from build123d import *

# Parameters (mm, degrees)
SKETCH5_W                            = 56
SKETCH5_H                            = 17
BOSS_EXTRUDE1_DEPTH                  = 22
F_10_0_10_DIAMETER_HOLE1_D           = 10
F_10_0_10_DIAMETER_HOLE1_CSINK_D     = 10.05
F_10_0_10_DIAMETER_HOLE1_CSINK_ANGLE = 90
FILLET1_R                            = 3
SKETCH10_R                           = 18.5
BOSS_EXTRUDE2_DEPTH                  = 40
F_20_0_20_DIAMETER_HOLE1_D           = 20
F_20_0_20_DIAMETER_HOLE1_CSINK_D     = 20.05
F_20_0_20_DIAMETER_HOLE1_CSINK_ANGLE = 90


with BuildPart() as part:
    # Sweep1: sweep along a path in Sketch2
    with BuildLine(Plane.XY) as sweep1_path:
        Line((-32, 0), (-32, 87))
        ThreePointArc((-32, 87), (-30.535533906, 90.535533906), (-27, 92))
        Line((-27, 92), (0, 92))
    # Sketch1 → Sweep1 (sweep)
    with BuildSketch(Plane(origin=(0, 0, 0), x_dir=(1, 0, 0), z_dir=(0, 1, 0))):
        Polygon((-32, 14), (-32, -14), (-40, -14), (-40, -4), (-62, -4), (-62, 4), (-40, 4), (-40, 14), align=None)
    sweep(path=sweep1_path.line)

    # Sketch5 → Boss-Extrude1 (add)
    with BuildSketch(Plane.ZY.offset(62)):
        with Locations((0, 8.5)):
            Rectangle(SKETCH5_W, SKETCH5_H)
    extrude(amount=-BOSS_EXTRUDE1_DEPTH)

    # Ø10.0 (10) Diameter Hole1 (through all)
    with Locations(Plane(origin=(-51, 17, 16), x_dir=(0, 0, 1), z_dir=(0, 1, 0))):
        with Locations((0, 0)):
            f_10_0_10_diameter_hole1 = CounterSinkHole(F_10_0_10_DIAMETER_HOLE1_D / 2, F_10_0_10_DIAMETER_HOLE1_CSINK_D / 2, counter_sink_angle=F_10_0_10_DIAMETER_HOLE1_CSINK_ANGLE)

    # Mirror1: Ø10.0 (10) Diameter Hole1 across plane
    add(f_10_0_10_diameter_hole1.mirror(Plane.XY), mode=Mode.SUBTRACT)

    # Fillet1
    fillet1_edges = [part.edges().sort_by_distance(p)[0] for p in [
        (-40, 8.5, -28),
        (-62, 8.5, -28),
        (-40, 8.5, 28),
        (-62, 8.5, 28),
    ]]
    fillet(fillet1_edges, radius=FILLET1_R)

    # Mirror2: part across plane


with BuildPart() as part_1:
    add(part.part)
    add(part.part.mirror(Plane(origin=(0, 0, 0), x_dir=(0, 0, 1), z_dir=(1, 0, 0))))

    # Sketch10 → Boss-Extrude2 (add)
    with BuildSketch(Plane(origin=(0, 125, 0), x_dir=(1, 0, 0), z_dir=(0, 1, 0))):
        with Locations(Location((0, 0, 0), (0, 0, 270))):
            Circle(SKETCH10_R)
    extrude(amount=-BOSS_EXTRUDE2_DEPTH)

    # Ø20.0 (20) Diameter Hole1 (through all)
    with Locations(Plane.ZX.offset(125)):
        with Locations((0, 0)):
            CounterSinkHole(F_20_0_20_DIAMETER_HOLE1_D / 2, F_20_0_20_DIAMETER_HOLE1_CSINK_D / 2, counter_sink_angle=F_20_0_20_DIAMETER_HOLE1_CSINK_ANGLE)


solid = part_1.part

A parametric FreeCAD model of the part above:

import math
import FreeCAD as App
import Part
import Sketcher
Q = App.Units.Quantity


def edges_at(feature, points):
    """Names of the edges that pass closest to the given points."""
    edges = feature.Shape.Edges
    near = lambda p: min(range(len(edges)), key=lambda i: edges[i].distToShape(Part.Vertex(*p))[0])
    return sorted({f"Edge{near(p) + 1}" for p in points})

doc = App.newDocument("Part")
body = doc.addObject("PartDesign::Body", "Body")

sketch1 = body.newObject("Sketcher::SketchObject", "Sketch")
sketch1.AttachmentSupport = (doc.getObject("XZ_Plane"), [""])
sketch1.MapMode = "FlatFace"
sketch1.addGeometry(Part.LineSegment(App.Vector(-32, 14, 0), App.Vector(-32, -14, 0)), False)
sketch1.addGeometry(Part.LineSegment(App.Vector(-32, -14, 0), App.Vector(-40, -14, 0)), False)
sketch1.addGeometry(Part.LineSegment(App.Vector(-40, -14, 0), App.Vector(-40, -4, 0)), False)
sketch1.addGeometry(Part.LineSegment(App.Vector(-40, -4, 0), App.Vector(-62, -4, 0)), False)
sketch1.addGeometry(Part.LineSegment(App.Vector(-62, -4, 0), App.Vector(-62, 4, 0)), False)
sketch1.addGeometry(Part.LineSegment(App.Vector(-62, 4, 0), App.Vector(-40, 4, 0)), False)
sketch1.addGeometry(Part.LineSegment(App.Vector(-40, 4, 0), App.Vector(-40, 14, 0)), False)
sketch1.addGeometry(Part.LineSegment(App.Vector(-40, 14, 0), App.Vector(-32, 14, 0)), False)
sketch1.addConstraint(Sketcher.Constraint("Coincident", 0, 2, 1, 1))
sketch1.addConstraint(Sketcher.Constraint("Coincident", 1, 2, 2, 1))
sketch1.addConstraint(Sketcher.Constraint("Coincident", 2, 2, 3, 1))
sketch1.addConstraint(Sketcher.Constraint("Coincident", 3, 2, 4, 1))
sketch1.addConstraint(Sketcher.Constraint("Coincident", 4, 2, 5, 1))
sketch1.addConstraint(Sketcher.Constraint("Coincident", 5, 2, 6, 1))
sketch1.addConstraint(Sketcher.Constraint("Coincident", 6, 2, 7, 1))
sketch1.addConstraint(Sketcher.Constraint("Coincident", 7, 2, 0, 1))
sketch1.addConstraint(Sketcher.Constraint("Vertical", 0))
sketch1.addConstraint(Sketcher.Constraint("Horizontal", 1))
sketch1.addConstraint(Sketcher.Constraint("Vertical", 2))
sketch1.addConstraint(Sketcher.Constraint("Horizontal", 3))
sketch1.addConstraint(Sketcher.Constraint("Vertical", 4))
sketch1.addConstraint(Sketcher.Constraint("Horizontal", 5))
sketch1.addConstraint(Sketcher.Constraint("Vertical", 6))
sketch1.addConstraint(Sketcher.Constraint("Horizontal", 7))
sketch1.addConstraint(Sketcher.Constraint("Symmetric", 2, 2, 5, 2, -1))
sketch1.addConstraint(Sketcher.Constraint("Equal", 7, 4))
sketch1.addConstraint(Sketcher.Constraint("Equal", 2, 6))
sketch1.addConstraint(Sketcher.Constraint("DistanceX", 1, 2, 1, 1, Q("8 mm")))
sketch1.addConstraint(Sketcher.Constraint("DistanceX", 3, 2, 3, 1, Q("22 mm")))
sketch1.addConstraint(Sketcher.Constraint("DistanceY", 0, 2, 0, 1, Q("28 mm")))
sketch1.addConstraint(Sketcher.Constraint("DistanceX", 0, 2, -1, 1, Q("32 mm")))

sketch2 = body.newObject("Sketcher::SketchObject", "Sketch001")
sketch2.AttachmentSupport = (doc.getObject("XY_Plane"), [""])
sketch2.MapMode = "FlatFace"
sketch2.addGeometry(Part.LineSegment(App.Vector(-32, 0, 0), App.Vector(-32, 87, 0)), False)
sketch2.addGeometry(Part.ArcOfCircle(Part.Circle(App.Vector(-27, 87, 0), App.Vector(0, 0, 1), 5), math.radians(90), math.radians(180)), False)
sketch2.addGeometry(Part.LineSegment(App.Vector(-27, 92, 0), App.Vector(0, 92, 0)), False)
sketch2.addConstraint(Sketcher.Constraint("Tangent", 0, 2, 1, 2))
sketch2.addConstraint(Sketcher.Constraint("Tangent", 1, 1, 2, 1))
sketch2.addConstraint(Sketcher.Constraint("Vertical", 0))
sketch2.addConstraint(Sketcher.Constraint("Horizontal", 2))
sketch2.addConstraint(Sketcher.Constraint("PointOnObject", 0, 1, -1))
sketch2.addConstraint(Sketcher.Constraint("PointOnObject", 2, 2, -2))
sketch2.addConstraint(Sketcher.Constraint("Radius", 1, Q("5 mm")))
sketch2.addConstraint(Sketcher.Constraint("DistanceX", 2, 1, 2, 2, Q("27 mm")))
sketch2.addConstraint(Sketcher.Constraint("DistanceY", 0, 1, 0, 2, Q("87 mm")))
doc.recompute()

additivepipe = body.newObject("PartDesign::AdditivePipe", "AdditivePipe")
additivepipe.Profile = sketch1
additivepipe.Spine = (sketch2, ["Edge1", "Edge2", "Edge3"])

sketch3 = body.newObject("Sketcher::SketchObject", "Sketch002")
sketch3.AttachmentSupport = (doc.getObject("YZ_Plane"), [""])
sketch3.MapMode = "FlatFace"
sketch3.AttachmentOffset = App.Placement(App.Vector(0, 0, -62), App.Rotation())
sketch3.addGeometry(Part.LineSegment(App.Vector(17, -28, 0), App.Vector(0, -28, 0)), False)
sketch3.addGeometry(Part.LineSegment(App.Vector(0, -28, 0), App.Vector(0, 28, 0)), False)
sketch3.addGeometry(Part.LineSegment(App.Vector(0, 28, 0), App.Vector(17, 28, 0)), False)
sketch3.addGeometry(Part.LineSegment(App.Vector(17, 28, 0), App.Vector(17, -28, 0)), False)
sketch3.addConstraint(Sketcher.Constraint("Coincident", 0, 2, 1, 1))
sketch3.addConstraint(Sketcher.Constraint("Coincident", 1, 2, 2, 1))
sketch3.addConstraint(Sketcher.Constraint("Coincident", 2, 2, 3, 1))
sketch3.addConstraint(Sketcher.Constraint("Coincident", 3, 2, 0, 1))
sketch3.addConstraint(Sketcher.Constraint("Horizontal", 0))
sketch3.addConstraint(Sketcher.Constraint("Vertical", 1))
sketch3.addConstraint(Sketcher.Constraint("Horizontal", 2))
sketch3.addConstraint(Sketcher.Constraint("Vertical", 3))
sketch3.addConstraint(Sketcher.Constraint("Symmetric", 0, 2, 1, 2, -1, 1))
sketch3.addConstraint(Sketcher.Constraint("DistanceX", 0, 2, 0, 1, Q("17 mm")))
sketch3.addConstraint(Sketcher.Constraint("DistanceY", 1, 1, 1, 2, Q("56 mm")))
pad1 = body.newObject("PartDesign::Pad", "Pad")
pad1.Profile = sketch3
pad1.Length = 22

sketch4 = body.newObject("Sketcher::SketchObject", "Sketch003")
sketch4.AttachmentSupport = (doc.getObject("XZ_Plane"), [""])
sketch4.MapMode = "FlatFace"
sketch4.AttachmentOffset = App.Placement(App.Vector(0, 0, -17), App.Rotation())
sketch4.addGeometry(Part.Circle(App.Vector(-51, 16, 0), App.Vector(0, 0, 1), 5), False)
sketch4.addConstraint(Sketcher.Constraint("Diameter", 0, Q("10 mm")))
sketch4.addConstraint(Sketcher.Constraint("DistanceX", 0, 3, -1, 1, Q("51 mm")))
sketch4.addConstraint(Sketcher.Constraint("DistanceY", -1, 1, 0, 3, Q("16 mm")))
doc.recompute()
hole = body.newObject("PartDesign::Hole", "Hole")
hole.Profile = sketch4
hole.ThreadType = "None"
hole.Diameter = 10
hole.DepthType = "ThroughAll"
hole.HoleCutType = "Countersink"
hole.HoleCutDiameter = 10.05
hole.HoleCutCountersinkAngle = 90
hole.Reversed = True
doc.recompute()

mirrored = body.newObject("PartDesign::Mirrored", "Mirrored")
mirrored.Originals = [hole]
mirrored.MirrorPlane = (doc.getObject("XY_Plane"), [""])
body.Tip = mirrored
doc.recompute()

fillet = body.newObject("PartDesign::Fillet", "Fillet")
fillet.Base = (mirrored, edges_at(mirrored, [
    (-40, 8.5, -28),
    (-62, 8.5, -28),
    (-40, 8.5, 28),
    (-62, 8.5, 28),
]))
fillet.Radius = 3
body2 = doc.addObject("PartDesign::Body", "Body001")
doc.recompute()

body2.BaseFeature = body
doc.recompute()

mirroring = doc.addObject("Part::Mirroring", "Mirroring")
mirroring.Source = body
mirroring.Base = App.Vector(0, 0, 0)
mirroring.Normal = App.Vector(1, 0, 0)
body3 = doc.addObject("PartDesign::Body", "Body002")
body3.BaseFeature = mirroring
boolean = body2.newObject("PartDesign::Boolean", "Boolean")
boolean.Type = "Fuse"
boolean.addObjects([body3])
doc.recompute()

sketch5 = body2.newObject("Sketcher::SketchObject", "Sketch004")
sketch5.AttachmentSupport = (doc.getObject("XZ_Plane001"), [""])
sketch5.MapMode = "FlatFace"
sketch5.AttachmentOffset = App.Placement(App.Vector(0, 0, -125), App.Rotation())
sketch5.addGeometry(Part.Circle(App.Vector(0, 0, 0), App.Vector(0, 0, 1), 18), False)
sketch5.addConstraint(Sketcher.Constraint("Coincident", 0, 3, -1, 1))
sketch5.addConstraint(Sketcher.Constraint("Diameter", 0, Q("37 mm")))
pad2 = body2.newObject("PartDesign::Pad", "Pad001")
pad2.Profile = sketch5
pad2.Length = 40

sketch6 = body2.newObject("Sketcher::SketchObject", "Sketch005")
sketch6.AttachmentSupport = (doc.getObject("XZ_Plane001"), [""])
sketch6.MapMode = "FlatFace"
sketch6.AttachmentOffset = App.Placement(App.Vector(0, 0, -125), App.Rotation())
sketch6.addGeometry(Part.Circle(App.Vector(0, 0, 0), App.Vector(0, 0, 1), 10), False)
sketch6.addConstraint(Sketcher.Constraint("Coincident", 0, 3, -1, 1))
sketch6.addConstraint(Sketcher.Constraint("Diameter", 0, Q("20 mm")))
doc.recompute()
hole2 = body2.newObject("PartDesign::Hole", "Hole001")
hole2.Profile = sketch6
hole2.ThreadType = "None"
hole2.Diameter = 20
hole2.DepthType = "ThroughAll"
hole2.HoleCutType = "Countersink"
hole2.HoleCutDiameter = 20.05
hole2.HoleCutCountersinkAngle = 90
hole2.Reversed = True
mirroring.Visibility = False

doc.recompute()
